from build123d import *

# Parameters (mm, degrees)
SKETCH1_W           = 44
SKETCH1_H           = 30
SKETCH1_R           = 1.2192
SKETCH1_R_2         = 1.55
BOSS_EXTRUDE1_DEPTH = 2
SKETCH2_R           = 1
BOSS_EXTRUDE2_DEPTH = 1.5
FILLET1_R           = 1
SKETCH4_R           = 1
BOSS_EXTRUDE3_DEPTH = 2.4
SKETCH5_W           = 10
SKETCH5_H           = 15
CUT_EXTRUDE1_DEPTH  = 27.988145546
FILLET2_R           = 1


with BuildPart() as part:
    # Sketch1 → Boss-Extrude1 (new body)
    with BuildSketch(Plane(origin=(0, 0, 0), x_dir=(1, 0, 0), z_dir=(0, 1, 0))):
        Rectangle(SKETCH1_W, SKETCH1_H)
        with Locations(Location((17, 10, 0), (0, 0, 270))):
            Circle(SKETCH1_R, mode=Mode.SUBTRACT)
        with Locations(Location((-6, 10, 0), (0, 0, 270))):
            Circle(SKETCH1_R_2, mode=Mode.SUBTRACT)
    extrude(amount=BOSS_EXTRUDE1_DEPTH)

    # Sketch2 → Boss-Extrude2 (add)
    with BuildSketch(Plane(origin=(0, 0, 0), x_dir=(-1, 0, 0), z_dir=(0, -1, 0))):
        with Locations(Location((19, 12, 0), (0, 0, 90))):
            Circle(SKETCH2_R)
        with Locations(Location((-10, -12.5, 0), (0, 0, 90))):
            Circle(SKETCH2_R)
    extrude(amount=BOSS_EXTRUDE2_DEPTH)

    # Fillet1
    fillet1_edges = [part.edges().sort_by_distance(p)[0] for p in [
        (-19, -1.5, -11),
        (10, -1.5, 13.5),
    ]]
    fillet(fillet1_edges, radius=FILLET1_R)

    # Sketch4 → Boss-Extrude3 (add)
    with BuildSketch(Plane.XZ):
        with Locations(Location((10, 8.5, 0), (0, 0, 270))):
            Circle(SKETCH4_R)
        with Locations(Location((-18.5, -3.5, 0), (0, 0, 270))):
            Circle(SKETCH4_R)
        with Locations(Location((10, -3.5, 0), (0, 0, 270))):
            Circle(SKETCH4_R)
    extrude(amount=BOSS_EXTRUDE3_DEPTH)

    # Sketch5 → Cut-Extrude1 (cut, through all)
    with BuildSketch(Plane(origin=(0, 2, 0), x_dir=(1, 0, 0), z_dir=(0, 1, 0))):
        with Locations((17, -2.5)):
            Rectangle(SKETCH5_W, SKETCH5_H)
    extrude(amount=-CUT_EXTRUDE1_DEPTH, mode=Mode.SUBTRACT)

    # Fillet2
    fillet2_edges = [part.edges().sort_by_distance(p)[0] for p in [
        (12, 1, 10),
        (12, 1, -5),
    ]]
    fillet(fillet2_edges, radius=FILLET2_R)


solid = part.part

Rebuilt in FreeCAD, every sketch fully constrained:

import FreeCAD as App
import Part
import Sketcher

V = App.Vector


def edges_at(feature, points):
    """Names of the edges that pass closest to the given points."""
    edges = feature.Shape.Edges
    near = lambda p: min(range(len(edges)), key=lambda i: edges[i].distToShape(Part.Vertex(*p))[0])
    return sorted({f"Edge{near(p) + 1}" for p in points})


def add_polygon(sketch, points):
    """Adds a closed chain of lines whose ends are joined by coincident constraints."""
    first, n = sketch.GeometryCount, len(points)
    for a, b in zip(points, points[1:] + points[:1]):
        sketch.addGeometry(Part.LineSegment(App.Vector(*a, 0), App.Vector(*b, 0)), False)
    for i in range(n):
        sketch.addConstraint(Sketcher.Constraint("Coincident", first + i, 2, first + (i + 1) % n, 1))

doc = App.newDocument("Part")
body = doc.addObject("PartDesign::Body", "Body")

# Sketch on XZ plane
sketch1 = doc.addObject("Sketcher::SketchObject", "Sketch")
body.addObject(sketch1)
sketch1.AttachmentSupport = (doc.XZ_Plane, [""])
sketch1.MapMode = "FlatFace"
add_polygon(sketch1, [(-22, -15), (-22, 15), (22, 15), (22, -15)])  # lines 0-3
sketch1.addGeometry(Part.Circle(V(-6, -10, 0), V(0, 0, 1), 1.55), False)  # 4
sketch1.addGeometry(Part.Circle(V(17, -10, 0), V(0, 0, 1), 1.2192), False)  # 5
sketch1.addConstraint([
    Sketcher.Constraint("Vertical", 0),
    Sketcher.Constraint("Horizontal", 1),
    Sketcher.Constraint("Vertical", 2),
    Sketcher.Constraint("Horizontal", 3),
    Sketcher.Constraint("Symmetric", 0, 2, 2, 2, -1, 1),
    Sketcher.Constraint("Horizontal", 4, 3, 5, 3),
    Sketcher.Constraint("Diameter", 4, 3.1),
    Sketcher.Constraint("DistanceX", 1, 1, 1, 2, 44.0),
    Sketcher.Constraint("DistanceY", 0, 1, 0, 2, 30.0),
    Sketcher.Constraint("DistanceX", 4, 3, -1, 1, 6.0),
    Sketcher.Constraint("DistanceY", 4, 3, -1, 1, 10.0),
    Sketcher.Constraint("DistanceX", -1, 1, 5, 3, 17.0),
    Sketcher.Constraint("Diameter", 5, 2.4384),
])
pad1 = doc.addObject("PartDesign::Pad", "Pad")
body.addObject(pad1)
pad1.Profile = sketch1
pad1.Length = 2
pad1.Reversed = True

# Sketch on XZ plane
sketch2 = doc.addObject("Sketcher::SketchObject", "Sketch001")
body.addObject(sketch2)
sketch2.AttachmentSupport = (doc.XZ_Plane, [""])
sketch2.MapMode = "FlatFace"
sketch2.addGeometry([
    Part.Circle(V(-19, -12, 0), V(0, 0, 1), 1),
    Part.Circle(V(10, 12.5, 0), V(0, 0, 1), 1),
], False)
sketch2.addConstraint([
    Sketcher.Constraint("Equal", 0, 1),
    Sketcher.Constraint("Diameter", 0, 2.0),
    Sketcher.Constraint("DistanceX", 0, 3, -1, 1, 19.0),
    Sketcher.Constraint("DistanceY", 0, 3, -1, 1, 12.0),
    Sketcher.Constraint("DistanceX", -1, 1, 1, 3, 10.0),
    Sketcher.Constraint("DistanceY", -1, 1, 1, 3, 12.5),
])
pad2 = doc.addObject("PartDesign::Pad", "Pad001")
body.addObject(pad2)
pad2.Profile = sketch2
pad2.Length = 1.5
doc.recompute()

fillet = doc.addObject("PartDesign::Fillet", "Fillet")
body.addObject(fillet)
fillet.Base = (pad2, edges_at(pad2, [(-19, -1.5, -11), (10, -1.5, 13.5)]))
fillet.Radius = 1

# Sketch on XZ plane
sketch3 = doc.addObject("Sketcher::SketchObject", "Sketch002")
body.addObject(sketch3)
sketch3.AttachmentSupport = (doc.XZ_Plane, [""])
sketch3.MapMode = "FlatFace"
sketch3.addGeometry([
    Part.Circle(V(10, 8.5, 0), V(0, 0, 1), 1),
    Part.Circle(V(-18.5, -3.5, 0), V(0, 0, 1), 1),
    Part.Circle(V(10, -3.5, 0), V(0, 0, 1), 1),
], False)
sketch3.addConstraint([
    Sketcher.Constraint("Equal", 0, 1),
    Sketcher.Constraint("Equal", 1, 2),
    Sketcher.Constraint("Horizontal", 1, 3, 2, 3),
    Sketcher.Constraint("Vertical", 0, 3, 2, 3),
    Sketcher.Constraint("Diameter", 0, 2.0),
    Sketcher.Constraint("DistanceX", -1, 1, 0, 3, 10.0),
    Sketcher.Constraint("DistanceY", 1, 3, 0, 3, 12.0),
    Sketcher.Constraint("DistanceY", -1, 1, 0, 3, 8.5),
    Sketcher.Constraint("DistanceX", 1, 3, -1, 1, 18.5),
])
pad3 = doc.addObject("PartDesign::Pad", "Pad002")
body.addObject(pad3)
pad3.Profile = sketch3
pad3.Length = 2.4

# Sketch on XZ plane
sketch4 = doc.addObject("Sketcher::SketchObject", "Sketch003")
body.addObject(sketch4)
sketch4.AttachmentSupport = (doc.XZ_Plane, [""])
sketch4.MapMode = "FlatFace"
sketch4.AttachmentOffset = App.Placement(V(0, 0, -2), App.Rotation())
add_polygon(sketch4, [(12, -5), (12, 10), (22, 10), (22, -5)])  # lines 0-3
sketch4.addConstraint([
    Sketcher.Constraint("Vertical", 0),
    Sketcher.Constraint("Horizontal", 1),
    Sketcher.Constraint("Vertical", 2),
    Sketcher.Constraint("Horizontal", 3),
    Sketcher.Constraint("DistanceX", 1, 1, 1, 2, 10.0),
    Sketcher.Constraint("DistanceY", 0, 1, 0, 2, 15.0),
    Sketcher.Constraint("DistanceX", -1, 1, 0, 2, 12.0),
    Sketcher.Constraint("DistanceY", -1, 1, 0, 2, 10.0),
])
pocket1 = doc.addObject("PartDesign::Pocket", "Pocket")
body.addObject(pocket1)
pocket1.Profile = sketch4
pocket1.Type = "ThroughAll"
pocket1.Reversed = True
doc.recompute()

fillet2 = doc.addObject("PartDesign::Fillet", "Fillet001")
body.addObject(fillet2)
fillet2.Base = (pocket1, edges_at(pocket1, [(12, 1, 10), (12, 1, -5)]))
fillet2.Radius = 1

doc.recompute()
